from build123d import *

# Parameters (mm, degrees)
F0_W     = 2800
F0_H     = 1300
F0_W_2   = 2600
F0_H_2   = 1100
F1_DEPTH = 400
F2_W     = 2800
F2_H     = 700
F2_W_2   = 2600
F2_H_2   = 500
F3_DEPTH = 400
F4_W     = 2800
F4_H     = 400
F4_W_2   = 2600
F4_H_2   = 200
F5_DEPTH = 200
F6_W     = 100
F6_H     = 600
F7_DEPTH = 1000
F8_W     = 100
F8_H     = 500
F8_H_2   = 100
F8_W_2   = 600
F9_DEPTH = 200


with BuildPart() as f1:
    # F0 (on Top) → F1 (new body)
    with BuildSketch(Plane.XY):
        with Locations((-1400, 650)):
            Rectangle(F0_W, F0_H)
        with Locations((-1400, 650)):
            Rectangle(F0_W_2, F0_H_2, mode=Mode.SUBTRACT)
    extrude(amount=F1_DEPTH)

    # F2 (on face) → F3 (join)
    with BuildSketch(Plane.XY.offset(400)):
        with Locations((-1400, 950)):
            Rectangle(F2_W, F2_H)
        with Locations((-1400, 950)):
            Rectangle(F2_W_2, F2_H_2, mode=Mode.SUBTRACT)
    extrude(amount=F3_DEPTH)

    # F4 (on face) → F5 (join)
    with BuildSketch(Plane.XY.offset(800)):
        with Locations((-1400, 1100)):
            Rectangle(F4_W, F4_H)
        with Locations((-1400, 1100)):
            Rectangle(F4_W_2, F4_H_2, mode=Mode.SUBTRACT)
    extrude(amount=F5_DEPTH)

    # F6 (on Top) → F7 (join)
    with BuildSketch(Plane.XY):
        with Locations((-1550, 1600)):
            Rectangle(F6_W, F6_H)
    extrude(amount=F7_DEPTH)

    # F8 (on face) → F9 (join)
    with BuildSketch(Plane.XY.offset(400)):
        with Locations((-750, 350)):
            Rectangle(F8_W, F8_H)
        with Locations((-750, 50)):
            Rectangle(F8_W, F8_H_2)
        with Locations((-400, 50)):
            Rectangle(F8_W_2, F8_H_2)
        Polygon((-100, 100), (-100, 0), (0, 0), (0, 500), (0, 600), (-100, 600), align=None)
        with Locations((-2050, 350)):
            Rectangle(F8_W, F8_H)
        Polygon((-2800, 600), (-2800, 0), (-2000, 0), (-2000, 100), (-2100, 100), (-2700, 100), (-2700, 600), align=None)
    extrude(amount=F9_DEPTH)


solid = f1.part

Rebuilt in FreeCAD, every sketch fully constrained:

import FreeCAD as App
import Part
import Sketcher

V = App.Vector

doc = App.newDocument("Part")
body = doc.addObject("PartDesign::Body", "Body")

sketch1 = doc.addObject("Sketcher::SketchObject", "Sketch")
body.addObject(sketch1)
sketch1.AttachmentSupport = (doc.XY_Plane, [""])
sketch1.MapMode = "FlatFace"
sketch1.addGeometry(Part.LineSegment(V(-2800, 1300, 0), V(-2800, 0, 0)), False)
sketch1.addGeometry(Part.LineSegment(V(-2800, 0, 0), V(0, 0, 0)), False)
sketch1.addGeometry(Part.LineSegment(V(0, 0, 0), V(0, 1300, 0)), False)
sketch1.addGeometry(Part.LineSegment(V(0, 1300, 0), V(-2800, 1300, 0)), False)
sketch1.addGeometry(Part.LineSegment(V(-100, 100, 0), V(-2700, 100, 0)), False)
sketch1.addGeometry(Part.LineSegment(V(-2700, 100, 0), V(-2700, 1200, 0)), False)
sketch1.addGeometry(Part.LineSegment(V(-2700, 1200, 0), V(-100, 1200, 0)), False)
sketch1.addGeometry(Part.LineSegment(V(-100, 1200, 0), V(-100, 100, 0)), False)
sketch1.addConstraint(Sketcher.Constraint("Coincident", 0, 2, 1, 1))
sketch1.addConstraint(Sketcher.Constraint("Coincident", 1, 2, 2, 1))
sketch1.addConstraint(Sketcher.Constraint("Coincident", 2, 2, 3, 1))
sketch1.addConstraint(Sketcher.Constraint("Coincident", 3, 2, 0, 1))
sketch1.addConstraint(Sketcher.Constraint("Coincident", 4, 2, 5, 1))
sketch1.addConstraint(Sketcher.Constraint("Coincident", 5, 2, 6, 1))
sketch1.addConstraint(Sketcher.Constraint("Coincident", 6, 2, 7, 1))
sketch1.addConstraint(Sketcher.Constraint("Coincident", 7, 2, 4, 1))
sketch1.addConstraint(Sketcher.Constraint("Vertical", 0))
sketch1.addConstraint(Sketcher.Constraint("Horizontal", 1))
sketch1.addConstraint(Sketcher.Constraint("Vertical", 2))
sketch1.addConstraint(Sketcher.Constraint("Horizontal", 3))
sketch1.addConstraint(Sketcher.Constraint("Horizontal", 4))
sketch1.addConstraint(Sketcher.Constraint("Vertical", 5))
sketch1.addConstraint(Sketcher.Constraint("Horizontal", 6))
sketch1.addConstraint(Sketcher.Constraint("Vertical", 7))
sketch1.addConstraint(Sketcher.Constraint("Coincident", 1, 2, -1, 1))
sketch1.addConstraint(Sketcher.Constraint("DistanceX", 1, 1, 1, 2, 2800.0))
sketch1.addConstraint(Sketcher.Constraint("DistanceX", 4, 2, 4, 1, 2600.0))
sketch1.addConstraint(Sketcher.Constraint("DistanceY", 0, 2, 0, 1, 1300.0))
sketch1.addConstraint(Sketcher.Constraint("DistanceY", 5, 1, 5, 2, 1100.0))
sketch1.addConstraint(Sketcher.Constraint("DistanceX", 4, 2, -1, 1, 2700.0))
sketch1.addConstraint(Sketcher.Constraint("DistanceY", -1, 1, 4, 2, 100.0))
pad1 = doc.addObject("PartDesign::Pad", "Pad")
body.addObject(pad1)
pad1.Profile = sketch1
pad1.Length = 400

sketch2 = doc.addObject("Sketcher::SketchObject", "Sketch001")
body.addObject(sketch2)
sketch2.AttachmentSupport = (doc.XY_Plane, [""])
sketch2.MapMode = "FlatFace"
sketch2.AttachmentOffset = App.Placement(V(0, 0, 400), App.Rotation())
sketch2.addGeometry(Part.LineSegment(V(-2800, 1300, 0), V(-2800, 600, 0)), False)
sketch2.addGeometry(Part.LineSegment(V(-2800, 600, 0), V(0, 600, 0)), False)
sketch2.addGeometry(Part.LineSegment(V(0, 600, 0), V(0, 1300, 0)), False)
sketch2.addGeometry(Part.LineSegment(V(0, 1300, 0), V(-2800, 1300, 0)), False)
sketch2.addGeometry(Part.LineSegment(V(-100, 700, 0), V(-2700, 700, 0)), False)
sketch2.addGeometry(Part.LineSegment(V(-2700, 700, 0), V(-2700, 1200, 0)), False)
sketch2.addGeometry(Part.LineSegment(V(-2700, 1200, 0), V(-100, 1200, 0)), False)
sketch2.addGeometry(Part.LineSegment(V(-100, 1200, 0), V(-100, 700, 0)), False)
sketch2.addConstraint(Sketcher.Constraint("Coincident", 0, 2, 1, 1))
sketch2.addConstraint(Sketcher.Constraint("Coincident", 1, 2, 2, 1))
sketch2.addConstraint(Sketcher.Constraint("Coincident", 2, 2, 3, 1))
sketch2.addConstraint(Sketcher.Constraint("Coincident", 3, 2, 0, 1))
sketch2.addConstraint(Sketcher.Constraint("Coincident", 4, 2, 5, 1))
sketch2.addConstraint(Sketcher.Constraint("Coincident", 5, 2, 6, 1))
sketch2.addConstraint(Sketcher.Constraint("Coincident", 6, 2, 7, 1))
sketch2.addConstraint(Sketcher.Constraint("Coincident", 7, 2, 4, 1))
sketch2.addConstraint(Sketcher.Constraint("Vertical", 0))
sketch2.addConstraint(Sketcher.Constraint("Horizontal", 1))
sketch2.addConstraint(Sketcher.Constraint("Vertical", 2))
sketch2.addConstraint(Sketcher.Constraint("Horizontal", 3))
sketch2.addConstraint(Sketcher.Constraint("Horizontal", 4))
sketch2.addConstraint(Sketcher.Constraint("Vertical", 5))
sketch2.addConstraint(Sketcher.Constraint("Horizontal", 6))
sketch2.addConstraint(Sketcher.Constraint("Vertical", 7))
sketch2.addConstraint(Sketcher.Constraint("PointOnObject", 1, 2, -2))
sketch2.addConstraint(Sketcher.Constraint("DistanceX", 1, 1, 1, 2, 2800.0))
sketch2.addConstraint(Sketcher.Constraint("DistanceX", 4, 2, 4, 1, 2600.0))
sketch2.addConstraint(Sketcher.Constraint("DistanceY", 0, 2, 0, 1, 700.0))
sketch2.addConstraint(Sketcher.Constraint("DistanceY", 5, 1, 5, 2, 500.0))
sketch2.addConstraint(Sketcher.Constraint("DistanceY", -1, 1, 0, 2, 600.0))
sketch2.addConstraint(Sketcher.Constraint("DistanceX", 4, 2, -1, 1, 2700.0))
sketch2.addConstraint(Sketcher.Constraint("DistanceY", -1, 1, 4, 2, 700.0))
pad2 = doc.addObject("PartDesign::Pad", "Pad001")
body.addObject(pad2)
pad2.Profile = sketch2
pad2.Length = 400

sketch3 = doc.addObject("Sketcher::SketchObject", "Sketch002")
body.addObject(sketch3)
sketch3.AttachmentSupport = (doc.XY_Plane, [""])
sketch3.MapMode = "FlatFace"
sketch3.AttachmentOffset = App.Placement(V(0, 0, 800), App.Rotation())
sketch3.addGeometry(Part.LineSegment(V(-2800, 1300, 0), V(-2800, 900, 0)), False)
sketch3.addGeometry(Part.LineSegment(V(-2800, 900, 0), V(0, 900, 0)), False)
sketch3.addGeometry(Part.LineSegment(V(0, 900, 0), V(0, 1300, 0)), False)
sketch3.addGeometry(Part.LineSegment(V(0, 1300, 0), V(-2800, 1300, 0)), False)
sketch3.addGeometry(Part.LineSegment(V(-100, 1000, 0), V(-2700, 1000, 0)), False)
sketch3.addGeometry(Part.LineSegment(V(-2700, 1000, 0), V(-2700, 1200, 0)), False)
sketch3.addGeometry(Part.LineSegment(V(-2700, 1200, 0), V(-100, 1200, 0)), False)
sketch3.addGeometry(Part.LineSegment(V(-100, 1200, 0), V(-100, 1000, 0)), False)
sketch3.addConstraint(Sketcher.Constraint("Coincident", 0, 2, 1, 1))
sketch3.addConstraint(Sketcher.Constraint("Coincident", 1, 2, 2, 1))
sketch3.addConstraint(Sketcher.Constraint("Coincident", 2, 2, 3, 1))
sketch3.addConstraint(Sketcher.Constraint("Coincident", 3, 2, 0, 1))
sketch3.addConstraint(Sketcher.Constraint("Coincident", 4, 2, 5, 1))
sketch3.addConstraint(Sketcher.Constraint("Coincident", 5, 2, 6, 1))
sketch3.addConstraint(Sketcher.Constraint("Coincident", 6, 2, 7, 1))
sketch3.addConstraint(Sketcher.Constraint("Coincident", 7, 2, 4, 1))
sketch3.addConstraint(Sketcher.Constraint("Vertical", 0))
sketch3.addConstraint(Sketcher.Constraint("Horizontal", 1))
sketch3.addConstraint(Sketcher.Constraint("Vertical", 2))
sketch3.addConstraint(Sketcher.Constraint("Horizontal", 3))
sketch3.addConstraint(Sketcher.Constraint("Horizontal", 4))
sketch3.addConstraint(Sketcher.Constraint("Vertical", 5))
sketch3.addConstraint(Sketcher.Constraint("Horizontal", 6))
sketch3.addConstraint(Sketcher.Constraint("Vertical", 7))
sketch3.addConstraint(Sketcher.Constraint("PointOnObject", 1, 2, -2))
sketch3.addConstraint(Sketcher.Constraint("DistanceX", 1, 1, 1, 2, 2800.0))
sketch3.addConstraint(Sketcher.Constraint("DistanceX", 4, 2, 4, 1, 2600.0))
sketch3.addConstraint(Sketcher.Constraint("DistanceY", 0, 2, 0, 1, 400.0))
sketch3.addConstraint(Sketcher.Constraint("DistanceY", 5, 1, 5, 2, 200.0))
sketch3.addConstraint(Sketcher.Constraint("DistanceY", -1, 1, 0, 2, 900.0))
sketch3.addConstraint(Sketcher.Constraint("DistanceX", 4, 2, -1, 1, 2700.0))
sketch3.addConstraint(Sketcher.Constraint("DistanceY", -1, 1, 4, 2, 1000.0))
pad3 = doc.addObject("PartDesign::Pad", "Pad002")
body.addObject(pad3)
pad3.Profile = sketch3
pad3.Length = 200

sketch4 = doc.addObject("Sketcher::SketchObject", "Sketch003")
body.addObject(sketch4)
sketch4.AttachmentSupport = (doc.XY_Plane, [""])
sketch4.MapMode = "FlatFace"
sketch4.addGeometry(Part.LineSegment(V(-1600, 1900, 0), V(-1600, 1300, 0)), False)
sketch4.addGeometry(Part.LineSegment(V(-1600, 1300, 0), V(-1500, 1300, 0)), False)
sketch4.addGeometry(Part.LineSegment(V(-1500, 1300, 0), V(-1500, 1900, 0)), False)
sketch4.addGeometry(Part.LineSegment(V(-1500, 1900, 0), V(-1600, 1900, 0)), False)
sketch4.addConstraint(Sketcher.Constraint("Coincident", 0, 2, 1, 1))
sketch4.addConstraint(Sketcher.Constraint("Coincident", 1, 2, 2, 1))
sketch4.addConstraint(Sketcher.Constraint("Coincident", 2, 2, 3, 1))
sketch4.addConstraint(Sketcher.Constraint("Coincident", 3, 2, 0, 1))
sketch4.addConstraint(Sketcher.Constraint("Vertical", 0))
sketch4.addConstraint(Sketcher.Constraint("Horizontal", 1))
sketch4.addConstraint(Sketcher.Constraint("Vertical", 2))
sketch4.addConstraint(Sketcher.Constraint("Horizontal", 3))
sketch4.addConstraint(Sketcher.Constraint("DistanceX", 1, 1, 1, 2, 100.0))
sketch4.addConstraint(Sketcher.Constraint("DistanceY", 0, 2, 0, 1, 600.0))
sketch4.addConstraint(Sketcher.Constraint("DistanceX", 0, 2, -1, 1, 1600.0))
sketch4.addConstraint(Sketcher.Constraint("DistanceY", -1, 1, 0, 2, 1300.0))
pad4 = doc.addObject("PartDesign::Pad", "Pad003")
body.addObject(pad4)
pad4.Profile = sketch4
pad4.Length = 1000

sketch5 = doc.addObject("Sketcher::SketchObject", "Sketch004")
body.addObject(sketch5)
sketch5.AttachmentSupport = (doc.XY_Plane, [""])
sketch5.MapMode = "FlatFace"
sketch5.AttachmentOffset = App.Placement(V(0, 0, 400), App.Rotation())
sketch5.addGeometry(Part.LineSegment(V(-800, 600, 0), V(-800, 0, 0)), False)
sketch5.addGeometry(Part.LineSegment(V(-800, 0, 0), V(0, 0, 0)), False)
sketch5.addGeometry(Part.LineSegment(V(0, 0, 0), V(0, 600, 0)), False)
sketch5.addGeometry(Part.LineSegment(V(0, 600, 0), V(-100, 600, 0)), False)
sketch5.addGeometry(Part.LineSegment(V(-100, 600, 0), V(-100, 100, 0)), False)
sketch5.addGeometry(Part.LineSegment(V(-100, 100, 0), V(-700, 100, 0)), False)
sketch5.addGeometry(Part.LineSegment(V(-700, 100, 0), V(-700, 600, 0)), False)
sketch5.addGeometry(Part.LineSegment(V(-700, 600, 0), V(-800, 600, 0)), False)
sketch5.addGeometry(Part.LineSegment(V(-2100, 600, 0), V(-2100, 100, 0)), False)
sketch5.addGeometry(Part.LineSegment(V(-2100, 100, 0), V(-2700, 100, 0)), False)
sketch5.addGeometry(Part.LineSegment(V(-2700, 100, 0), V(-2700, 600, 0)), False)
sketch5.addGeometry(Part.LineSegment(V(-2700, 600, 0), V(-2800, 600, 0)), False)
sketch5.addGeometry(Part.LineSegment(V(-2800, 600, 0), V(-2800, 0, 0)), False)
sketch5.addGeometry(Part.LineSegment(V(-2800, 0, 0), V(-2000, 0, 0)), False)
sketch5.addGeometry(Part.LineSegment(V(-2000, 0, 0), V(-2000, 600, 0)), False)
sketch5.addGeometry(Part.LineSegment(V(-2000, 600, 0), V(-2100, 600, 0)), False)
sketch5.addConstraint(Sketcher.Constraint("Coincident", 0, 2, 1, 1))
sketch5.addConstraint(Sketcher.Constraint("Coincident", 1, 2, 2, 1))
sketch5.addConstraint(Sketcher.Constraint("Coincident", 2, 2, 3, 1))
sketch5.addConstraint(Sketcher.Constraint("Coincident", 3, 2, 4, 1))
sketch5.addConstraint(Sketcher.Constraint("Coincident", 4, 2, 5, 1))
sketch5.addConstraint(Sketcher.Constraint("Coincident", 5, 2, 6, 1))
sketch5.addConstraint(Sketcher.Constraint("Coincident", 6, 2, 7, 1))
sketch5.addConstraint(Sketcher.Constraint("Coincident", 7, 2, 0, 1))
sketch5.addConstraint(Sketcher.Constraint("Coincident", 8, 2, 9, 1))
sketch5.addConstraint(Sketcher.Constraint("Coincident", 9, 2, 10, 1))
sketch5.addConstraint(Sketcher.Constraint("Coincident", 10, 2, 11, 1))
sketch5.addConstraint(Sketcher.Constraint("Coincident", 11, 2, 12, 1))
sketch5.addConstraint(Sketcher.Constraint("Coincident", 12, 2, 13, 1))
sketch5.addConstraint(Sketcher.Constraint("Coincident", 13, 2, 14, 1))
sketch5.addConstraint(Sketcher.Constraint("Coincident", 14, 2, 15, 1))
sketch5.addConstraint(Sketcher.Constraint("Coincident", 15, 2, 8, 1))
sketch5.addConstraint(Sketcher.Constraint("Vertical", 0))
sketch5.addConstraint(Sketcher.Constraint("Horizontal", 1))
sketch5.addConstraint(Sketcher.Constraint("Vertical", 2))
sketch5.addConstraint(Sketcher.Constraint("Horizontal", 3))
sketch5.addConstraint(Sketcher.Constraint("Vertical", 4))
sketch5.addConstraint(Sketcher.Constraint("Horizontal", 5))
sketch5.addConstraint(Sketcher.Constraint("Vertical", 6))
sketch5.addConstraint(Sketcher.Constraint("Horizontal", 7))
sketch5.addConstraint(Sketcher.Constraint("Vertical", 8))
sketch5.addConstraint(Sketcher.Constraint("Horizontal", 9))
sketch5.addConstraint(Sketcher.Constraint("Vertical", 10))
sketch5.addConstraint(Sketcher.Constraint("Horizontal", 11))
sketch5.addConstraint(Sketcher.Constraint("Vertical", 12))
sketch5.addConstraint(Sketcher.Constraint("Horizontal", 13))
sketch5.addConstraint(Sketcher.Constraint("Vertical", 14))
sketch5.addConstraint(Sketcher.Constraint("Horizontal", 15))
sketch5.addConstraint(Sketcher.Constraint("Coincident", 1, 2, -1, 1))
sketch5.addConstraint(Sketcher.Constraint("PointOnObject", 12, 2, -1))
sketch5.addConstraint(Sketcher.Constraint("Horizontal", 3, 2, 6, 2))
sketch5.addConstraint(Sketcher.Constraint("Horizontal", 5, 2, 8, 2))
sketch5.addConstraint(Sketcher.Constraint("Horizontal", 7, 2, 10, 2))
sketch5.addConstraint(Sketcher.Constraint("Horizontal", 11, 2, 14, 2))
sketch5.addConstraint(Sketcher.Constraint("Equal", 3, 7))
sketch5.addConstraint(Sketcher.Constraint("Equal", 5, 9))
sketch5.addConstraint(Sketcher.Constraint("Equal", 7, 11))
sketch5.addConstraint(Sketcher.Constraint("Equal", 1, 13))
sketch5.addConstraint(Sketcher.Constraint("Equal", 9, 0))
sketch5.addConstraint(Sketcher.Constraint("DistanceX", 1, 1, 1, 2, 800.0))
sketch5.addConstraint(Sketcher.Constraint("DistanceX", 3, 2, 3, 1, 100.0))
sketch5.addConstraint(Sketcher.Constraint("DistanceY", 4, 2, 4, 1, 500.0))
sketch5.addConstraint(Sketcher.Constraint("DistanceX", 8, 2, -1, 1, 2100.0))
pad5 = doc.addObject("PartDesign::Pad", "Pad004")
body.addObject(pad5)
pad5.Profile = sketch5
pad5.Length = 200

doc.recompute()
